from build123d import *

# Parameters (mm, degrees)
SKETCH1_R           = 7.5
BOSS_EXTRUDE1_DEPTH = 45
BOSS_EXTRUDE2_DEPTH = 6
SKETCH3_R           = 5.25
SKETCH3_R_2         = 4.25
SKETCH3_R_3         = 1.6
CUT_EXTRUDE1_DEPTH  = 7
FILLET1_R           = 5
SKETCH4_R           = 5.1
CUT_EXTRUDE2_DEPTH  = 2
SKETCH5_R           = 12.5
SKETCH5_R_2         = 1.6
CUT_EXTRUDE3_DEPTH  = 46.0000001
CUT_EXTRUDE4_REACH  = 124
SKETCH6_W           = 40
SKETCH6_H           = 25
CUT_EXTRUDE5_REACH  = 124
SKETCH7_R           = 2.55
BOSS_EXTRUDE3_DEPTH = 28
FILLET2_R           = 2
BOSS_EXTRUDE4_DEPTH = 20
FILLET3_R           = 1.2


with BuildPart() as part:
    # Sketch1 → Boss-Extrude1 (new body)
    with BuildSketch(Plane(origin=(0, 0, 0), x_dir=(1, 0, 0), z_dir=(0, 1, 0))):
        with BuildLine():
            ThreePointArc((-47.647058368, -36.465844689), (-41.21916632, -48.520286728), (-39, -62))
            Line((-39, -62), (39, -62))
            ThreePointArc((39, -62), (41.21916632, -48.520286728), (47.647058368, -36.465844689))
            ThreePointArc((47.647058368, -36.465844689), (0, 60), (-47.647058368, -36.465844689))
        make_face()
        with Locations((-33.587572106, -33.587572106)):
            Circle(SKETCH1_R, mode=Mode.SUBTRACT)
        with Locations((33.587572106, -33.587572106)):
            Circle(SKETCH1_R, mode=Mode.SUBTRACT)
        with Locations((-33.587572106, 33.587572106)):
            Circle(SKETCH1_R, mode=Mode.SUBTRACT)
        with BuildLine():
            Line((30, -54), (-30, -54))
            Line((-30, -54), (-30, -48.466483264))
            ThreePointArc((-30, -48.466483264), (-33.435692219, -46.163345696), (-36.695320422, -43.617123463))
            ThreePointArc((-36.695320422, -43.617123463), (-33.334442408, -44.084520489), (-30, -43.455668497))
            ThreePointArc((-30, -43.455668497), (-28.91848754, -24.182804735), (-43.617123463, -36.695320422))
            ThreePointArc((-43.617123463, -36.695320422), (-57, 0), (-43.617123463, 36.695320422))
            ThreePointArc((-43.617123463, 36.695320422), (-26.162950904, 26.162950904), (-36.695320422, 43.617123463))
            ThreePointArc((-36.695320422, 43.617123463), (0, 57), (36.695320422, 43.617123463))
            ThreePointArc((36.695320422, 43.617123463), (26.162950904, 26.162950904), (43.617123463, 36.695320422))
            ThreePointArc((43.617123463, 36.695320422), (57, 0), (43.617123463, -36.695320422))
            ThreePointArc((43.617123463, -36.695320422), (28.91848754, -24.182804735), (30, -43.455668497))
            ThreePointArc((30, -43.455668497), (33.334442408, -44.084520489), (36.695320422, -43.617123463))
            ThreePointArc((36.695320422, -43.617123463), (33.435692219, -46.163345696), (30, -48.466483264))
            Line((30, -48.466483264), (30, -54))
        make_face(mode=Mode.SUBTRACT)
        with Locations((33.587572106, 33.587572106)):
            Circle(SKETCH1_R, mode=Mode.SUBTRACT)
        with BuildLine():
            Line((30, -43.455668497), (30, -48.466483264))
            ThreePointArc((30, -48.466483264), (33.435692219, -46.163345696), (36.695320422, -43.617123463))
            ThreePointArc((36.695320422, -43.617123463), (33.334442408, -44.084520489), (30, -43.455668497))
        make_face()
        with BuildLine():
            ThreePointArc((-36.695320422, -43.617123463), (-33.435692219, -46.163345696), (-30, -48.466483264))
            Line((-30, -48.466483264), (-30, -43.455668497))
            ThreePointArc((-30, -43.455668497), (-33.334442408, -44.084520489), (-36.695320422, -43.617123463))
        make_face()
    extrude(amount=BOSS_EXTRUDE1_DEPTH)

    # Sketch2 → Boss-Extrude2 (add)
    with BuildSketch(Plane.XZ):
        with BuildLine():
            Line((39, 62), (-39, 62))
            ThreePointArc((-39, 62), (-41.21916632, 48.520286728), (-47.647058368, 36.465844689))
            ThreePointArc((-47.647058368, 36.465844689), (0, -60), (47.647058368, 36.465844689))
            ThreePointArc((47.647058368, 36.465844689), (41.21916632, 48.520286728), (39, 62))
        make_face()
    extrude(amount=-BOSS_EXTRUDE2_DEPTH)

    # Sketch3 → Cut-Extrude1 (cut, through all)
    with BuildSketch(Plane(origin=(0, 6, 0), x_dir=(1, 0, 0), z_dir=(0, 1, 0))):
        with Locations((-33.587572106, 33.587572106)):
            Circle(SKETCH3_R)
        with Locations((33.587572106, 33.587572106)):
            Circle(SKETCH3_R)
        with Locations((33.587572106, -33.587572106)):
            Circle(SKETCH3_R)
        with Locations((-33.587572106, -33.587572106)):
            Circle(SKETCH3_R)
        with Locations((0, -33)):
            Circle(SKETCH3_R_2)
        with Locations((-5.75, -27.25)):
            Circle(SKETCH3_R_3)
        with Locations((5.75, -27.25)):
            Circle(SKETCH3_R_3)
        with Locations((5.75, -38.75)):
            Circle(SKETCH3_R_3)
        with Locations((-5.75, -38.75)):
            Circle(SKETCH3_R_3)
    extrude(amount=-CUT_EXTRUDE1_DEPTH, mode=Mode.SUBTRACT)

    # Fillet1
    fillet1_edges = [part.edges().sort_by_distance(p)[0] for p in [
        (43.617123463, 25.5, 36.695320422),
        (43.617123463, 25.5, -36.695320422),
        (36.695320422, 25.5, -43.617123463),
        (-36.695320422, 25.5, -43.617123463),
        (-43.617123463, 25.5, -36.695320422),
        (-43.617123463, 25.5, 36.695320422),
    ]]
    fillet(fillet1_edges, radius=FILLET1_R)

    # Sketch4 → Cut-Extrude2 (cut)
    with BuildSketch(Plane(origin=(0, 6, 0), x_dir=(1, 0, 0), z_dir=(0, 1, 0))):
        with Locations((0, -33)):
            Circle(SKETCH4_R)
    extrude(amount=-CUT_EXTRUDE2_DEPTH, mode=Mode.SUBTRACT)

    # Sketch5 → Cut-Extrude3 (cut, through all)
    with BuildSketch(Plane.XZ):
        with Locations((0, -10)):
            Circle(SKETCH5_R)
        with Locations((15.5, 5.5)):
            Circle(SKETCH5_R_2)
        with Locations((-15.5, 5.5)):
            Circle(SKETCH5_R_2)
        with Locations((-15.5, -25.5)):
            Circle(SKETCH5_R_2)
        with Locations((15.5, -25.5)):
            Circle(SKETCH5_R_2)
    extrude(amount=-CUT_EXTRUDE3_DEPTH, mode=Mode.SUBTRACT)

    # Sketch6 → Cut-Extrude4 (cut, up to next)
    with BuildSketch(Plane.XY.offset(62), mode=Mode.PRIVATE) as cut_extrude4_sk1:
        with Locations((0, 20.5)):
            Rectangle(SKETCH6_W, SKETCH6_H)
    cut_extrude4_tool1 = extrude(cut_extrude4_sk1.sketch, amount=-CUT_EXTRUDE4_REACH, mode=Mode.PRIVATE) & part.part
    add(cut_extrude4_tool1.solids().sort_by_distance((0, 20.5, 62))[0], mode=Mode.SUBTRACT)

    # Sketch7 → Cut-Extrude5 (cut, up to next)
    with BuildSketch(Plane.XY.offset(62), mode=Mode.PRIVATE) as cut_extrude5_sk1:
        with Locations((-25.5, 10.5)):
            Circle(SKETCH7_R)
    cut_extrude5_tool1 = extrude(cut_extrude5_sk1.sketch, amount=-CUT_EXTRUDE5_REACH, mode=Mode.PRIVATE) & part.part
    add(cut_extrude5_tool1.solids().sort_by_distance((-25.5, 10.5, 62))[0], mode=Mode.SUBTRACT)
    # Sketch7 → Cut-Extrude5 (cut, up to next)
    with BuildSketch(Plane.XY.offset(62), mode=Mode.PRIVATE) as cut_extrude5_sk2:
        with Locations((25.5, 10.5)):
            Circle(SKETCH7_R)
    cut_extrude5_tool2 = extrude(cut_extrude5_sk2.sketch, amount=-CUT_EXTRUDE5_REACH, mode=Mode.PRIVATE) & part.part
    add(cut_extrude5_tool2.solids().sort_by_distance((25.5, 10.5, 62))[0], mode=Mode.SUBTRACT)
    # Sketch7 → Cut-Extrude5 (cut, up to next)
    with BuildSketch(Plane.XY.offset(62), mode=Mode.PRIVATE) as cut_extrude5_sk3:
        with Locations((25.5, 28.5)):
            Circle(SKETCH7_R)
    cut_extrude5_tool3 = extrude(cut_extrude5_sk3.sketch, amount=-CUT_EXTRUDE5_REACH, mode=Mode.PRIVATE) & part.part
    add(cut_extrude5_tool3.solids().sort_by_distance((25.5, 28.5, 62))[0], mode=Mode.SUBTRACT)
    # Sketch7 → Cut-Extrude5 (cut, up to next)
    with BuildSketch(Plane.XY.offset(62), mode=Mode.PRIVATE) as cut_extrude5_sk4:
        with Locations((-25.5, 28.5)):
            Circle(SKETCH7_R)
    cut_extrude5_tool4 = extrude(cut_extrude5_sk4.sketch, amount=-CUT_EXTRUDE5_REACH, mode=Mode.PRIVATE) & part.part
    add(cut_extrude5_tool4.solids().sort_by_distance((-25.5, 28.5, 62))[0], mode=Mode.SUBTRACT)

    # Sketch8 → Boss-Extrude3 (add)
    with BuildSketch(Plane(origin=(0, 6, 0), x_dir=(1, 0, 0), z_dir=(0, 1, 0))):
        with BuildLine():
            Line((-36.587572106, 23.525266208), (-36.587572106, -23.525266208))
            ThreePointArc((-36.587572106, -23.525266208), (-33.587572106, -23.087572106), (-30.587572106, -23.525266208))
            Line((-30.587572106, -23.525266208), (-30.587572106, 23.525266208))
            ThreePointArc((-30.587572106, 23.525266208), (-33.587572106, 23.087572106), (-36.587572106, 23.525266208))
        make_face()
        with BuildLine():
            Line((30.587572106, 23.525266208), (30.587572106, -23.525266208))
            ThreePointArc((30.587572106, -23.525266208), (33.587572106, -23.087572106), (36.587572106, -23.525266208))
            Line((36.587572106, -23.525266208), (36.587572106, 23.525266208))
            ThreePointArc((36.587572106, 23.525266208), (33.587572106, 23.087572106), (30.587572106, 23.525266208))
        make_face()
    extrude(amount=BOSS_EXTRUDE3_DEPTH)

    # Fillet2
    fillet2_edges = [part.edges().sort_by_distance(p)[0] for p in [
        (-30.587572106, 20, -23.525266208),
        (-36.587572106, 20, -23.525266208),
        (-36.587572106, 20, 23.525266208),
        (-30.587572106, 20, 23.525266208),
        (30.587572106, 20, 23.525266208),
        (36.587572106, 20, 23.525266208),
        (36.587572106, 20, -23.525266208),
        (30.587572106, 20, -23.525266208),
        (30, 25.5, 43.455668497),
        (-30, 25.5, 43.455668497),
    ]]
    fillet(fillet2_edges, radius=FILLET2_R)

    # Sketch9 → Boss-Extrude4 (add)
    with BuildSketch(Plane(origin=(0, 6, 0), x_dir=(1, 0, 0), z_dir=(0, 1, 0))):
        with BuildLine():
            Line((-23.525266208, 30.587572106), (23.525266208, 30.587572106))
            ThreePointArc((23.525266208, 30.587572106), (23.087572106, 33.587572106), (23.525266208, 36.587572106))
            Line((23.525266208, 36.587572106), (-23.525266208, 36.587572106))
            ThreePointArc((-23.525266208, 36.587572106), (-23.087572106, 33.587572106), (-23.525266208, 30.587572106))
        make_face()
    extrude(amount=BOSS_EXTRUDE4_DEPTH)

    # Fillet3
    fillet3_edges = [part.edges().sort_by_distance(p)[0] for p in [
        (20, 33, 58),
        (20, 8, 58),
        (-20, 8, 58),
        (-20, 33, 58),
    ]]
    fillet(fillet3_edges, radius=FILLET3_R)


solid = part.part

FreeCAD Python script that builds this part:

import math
import FreeCAD as App
import Part
import Sketcher

V = App.Vector


def edges_at(feature, points):
    """Names of the edges that pass closest to the given points."""
    edges = feature.Shape.Edges
    near = lambda p: min(range(len(edges)), key=lambda i: edges[i].distToShape(Part.Vertex(*p))[0])
    return sorted({f"Edge{near(p) + 1}" for p in points})


def add_polygon(sketch, points):
    """Adds a closed chain of lines whose ends are joined by coincident constraints."""
    first, n = sketch.GeometryCount, len(points)
    for a, b in zip(points, points[1:] + points[:1]):
        sketch.addGeometry(Part.LineSegment(App.Vector(*a, 0), App.Vector(*b, 0)), False)
    for i in range(n):
        sketch.addConstraint(Sketcher.Constraint("Coincident", first + i, 2, first + (i + 1) % n, 1))

doc = App.newDocument("Part")
body = doc.addObject("PartDesign::Body", "Body")

sketch1 = body.newObject("Sketcher::SketchObject", "Sketch")
sketch1.AttachmentSupport = (doc.getObject("XZ_Plane"), [""])
sketch1.MapMode = "FlatFace"
sketch1.addGeometry(Part.ArcOfCircle(Part.Circle(V(-81, 62, 0), V(0, 0, 1), 42), math.radians(-37), math.radians(0)), False)
sketch1.addGeometry(Part.LineSegment(V(-39, 62, 0), V(39, 62, 0)), False)
sketch1.addGeometry(Part.ArcOfCircle(Part.Circle(V(81, 62, 0), V(0, 0, 1), 42), math.radians(180), math.radians(217)), False)
sketch1.addGeometry(Part.ArcOfCircle(Part.Circle(V(0, 0, 0), V(0, 0, 1), 60), math.radians(143), math.radians(397)), False)
sketch1.addGeometry(Part.Circle(V(-34, 34, 0), V(0, 0, 1), 8), False)
sketch1.addGeometry(Part.Circle(V(34, 34, 0), V(0, 0, 1), 8), False)
sketch1.addGeometry(Part.LineSegment(V(30, 54, 0), V(-30, 54, 0)), False)
sketch1.addGeometry(Part.LineSegment(V(-30, 54, 0), V(-30, 43, 0)), False)
sketch1.addGeometry(Part.ArcOfCircle(Part.Circle(V(-34, 34, 0), V(0, 0, 1), 10), math.radians(163), math.radians(430)), False)
sketch1.addGeometry(Part.ArcOfCircle(Part.Circle(V(0, 0, 0), V(0, 0, 1), 57), math.radians(140), math.radians(220)), False)
sketch1.addGeometry(Part.ArcOfCircle(Part.Circle(V(-34, -34, 0), V(0, 0, 1), 10), math.radians(-107), math.radians(197)), False)
sketch1.addGeometry(Part.ArcOfCircle(Part.Circle(V(0, 0, 0), V(0, 0, 1), 57), math.radians(-130), math.radians(-50)), False)
sketch1.addGeometry(Part.ArcOfCircle(Part.Circle(V(34, -34, 0), V(0, 0, 1), 10), math.radians(-17), math.radians(287)), False)
sketch1.addGeometry(Part.ArcOfCircle(Part.Circle(V(0, 0, 0), V(0, 0, 1), 57), math.radians(-40), math.radians(40)), False)
sketch1.addGeometry(Part.ArcOfCircle(Part.Circle(V(34, 34, 0), V(0, 0, 1), 10), math.radians(110), math.radians(377)), False)
sketch1.addGeometry(Part.LineSegment(V(30, 43, 0), V(30, 54, 0)), False)
sketch1.addGeometry(Part.Circle(V(-34, -34, 0), V(0, 0, 1), 8), False)
sketch1.addGeometry(Part.Circle(V(34, -34, 0), V(0, 0, 1), 8), False)
sketch1.addConstraint(Sketcher.Constraint("Coincident", 0, 2, 1, 1))
sketch1.addConstraint(Sketcher.Constraint("Coincident", 1, 2, 2, 1))
sketch1.addConstraint(Sketcher.Constraint("Tangent", 2, 2, 3, 2))
sketch1.addConstraint(Sketcher.Constraint("Tangent", 3, 1, 0, 1))
sketch1.addConstraint(Sketcher.Constraint("Coincident", 6, 2, 7, 1))
sketch1.addConstraint(Sketcher.Constraint("Coincident", 7, 2, 8, 2))
sketch1.addConstraint(Sketcher.Constraint("Coincident", 8, 1, 9, 1))
sketch1.addConstraint(Sketcher.Constraint("Coincident", 9, 2, 10, 2))
sketch1.addConstraint(Sketcher.Constraint("Coincident", 10, 1, 11, 1))
sketch1.addConstraint(Sketcher.Constraint("Coincident", 11, 2, 12, 2))
sketch1.addConstraint(Sketcher.Constraint("Coincident", 12, 1, 13, 1))
sketch1.addConstraint(Sketcher.Constraint("Coincident", 13, 2, 14, 2))
sketch1.addConstraint(Sketcher.Constraint("Coincident", 14, 1, 15, 1))
sketch1.addConstraint(Sketcher.Constraint("Coincident", 15, 2, 6, 1))
sketch1.addConstraint(Sketcher.Constraint("Horizontal", 1))
sketch1.addConstraint(Sketcher.Constraint("Horizontal", 6))
sketch1.addConstraint(Sketcher.Constraint("Vertical", 7))
sketch1.addConstraint(Sketcher.Constraint("Vertical", 15))
sketch1.addConstraint(Sketcher.Constraint("Coincident", 3, 3, -1, 1))
sketch1.addConstraint(Sketcher.Constraint("Coincident", 9, 3, -1, 1))
sketch1.addConstraint(Sketcher.Constraint("Coincident", 11, 3, -1, 1))
sketch1.addConstraint(Sketcher.Constraint("Coincident", 13, 3, -1, 1))
sketch1.addConstraint(Sketcher.Constraint("Coincident", 8, 3, 4, 3))
sketch1.addConstraint(Sketcher.Constraint("Coincident", 14, 3, 5, 3))
sketch1.addConstraint(Sketcher.Constraint("Coincident", 16, 3, 10, 3))
sketch1.addConstraint(Sketcher.Constraint("Coincident", 17, 3, 12, 3))
sketch1.addConstraint(Sketcher.Constraint("Equal", 0, 2))
sketch1.addConstraint(Sketcher.Constraint("Equal", 4, 5))
sketch1.addConstraint(Sketcher.Constraint("Equal", 8, 10))
sketch1.addConstraint(Sketcher.Constraint("Equal", 9, 11))
sketch1.addConstraint(Sketcher.Constraint("Equal", 10, 12))
sketch1.addConstraint(Sketcher.Constraint("Equal", 11, 13))
sketch1.addConstraint(Sketcher.Constraint("Equal", 12, 14))
sketch1.addConstraint(Sketcher.Constraint("Equal", 5, 16))
sketch1.addConstraint(Sketcher.Constraint("Equal", 16, 17))
sketch1.addConstraint(Sketcher.Constraint("Symmetric", 5, 3, 10, 3, -1, 1))
sketch1.addConstraint(Sketcher.Constraint("Symmetric", 4, 3, 12, 3, -1, 1))
sketch1.addConstraint(Sketcher.Constraint("Symmetric", 4, 3, 5, 3, -2))
sketch1.addConstraint(Sketcher.Constraint("Horizontal", 0, 3, 2, 3))
sketch1.addConstraint(Sketcher.Constraint("Horizontal", 7, 2, 14, 1))
sketch1.addConstraint(Sketcher.Constraint("Diameter", 4, 15.0))
sketch1.addConstraint(Sketcher.Constraint("Radius", 0, 42.0))
sketch1.addConstraint(Sketcher.Constraint("Radius", 3, 60.0))
sketch1.addConstraint(Sketcher.Constraint("Radius", 9, 57.0))
sketch1.addConstraint(Sketcher.Constraint("Radius", 8, 10.5))
sketch1.addConstraint(Sketcher.Constraint("DistanceX", 1, 1, 1, 2, 78.0))
sketch1.addConstraint(Sketcher.Constraint("DistanceX", 6, 2, 6, 1, 60.0))
sketch1.addConstraint(Sketcher.Constraint("DistanceY", -1, 1, 0, 2, 62.0))
sketch1.addConstraint(Sketcher.Constraint("DistanceY", -1, 1, 6, 2, 54.0))
sketch1.addConstraint(Sketcher.Constraint("DistanceY", 7, 2, 7, 1, 10.544332))
sketch1.addConstraint(Sketcher.Constraint("DistanceY", -1, 1, 8, 1, 36.69532))
pad1 = body.newObject("PartDesign::Pad", "Pad")
pad1.Profile = sketch1
pad1.Length = 45
pad1.Reversed = True

sketch2 = body.newObject("Sketcher::SketchObject", "Sketch001")
sketch2.AttachmentSupport = (doc.getObject("XZ_Plane"), [""])
sketch2.MapMode = "FlatFace"
sketch2.addGeometry(Part.LineSegment(V(39, 62, 0), V(-39, 62, 0)), False)
sketch2.addGeometry(Part.ArcOfCircle(Part.Circle(V(-81, 62, 0), V(0, 0, 1), 42), math.radians(-37), math.radians(0)), False)
sketch2.addGeometry(Part.ArcOfCircle(Part.Circle(V(0, 0, 0), V(0, 0, 1), 60), math.radians(143), math.radians(397)), False)
sketch2.addGeometry(Part.ArcOfCircle(Part.Circle(V(81, 62, 0), V(0, 0, 1), 42), math.radians(180), math.radians(217)), False)
sketch2.addConstraint(Sketcher.Constraint("Coincident", 0, 2, 1, 2))
sketch2.addConstraint(Sketcher.Constraint("Tangent", 1, 1, 2, 1))
sketch2.addConstraint(Sketcher.Constraint("Tangent", 2, 2, 3, 2))
sketch2.addConstraint(Sketcher.Constraint("Coincident", 3, 1, 0, 1))
sketch2.addConstraint(Sketcher.Constraint("Horizontal", 0))
sketch2.addConstraint(Sketcher.Constraint("Coincident", 2, 3, -1, 1))
sketch2.addConstraint(Sketcher.Constraint("Equal", 1, 3))
sketch2.addConstraint(Sketcher.Constraint("Horizontal", 1, 3, 3, 3))
sketch2.addConstraint(Sketcher.Constraint("Radius", 1, 42.0))
sketch2.addConstraint(Sketcher.Constraint("Radius", 2, 60.0))
sketch2.addConstraint(Sketcher.Constraint("DistanceX", 0, 2, 0, 1, 78.0))
sketch2.addConstraint(Sketcher.Constraint("DistanceY", -1, 1, 0, 2, 62.0))
pad2 = body.newObject("PartDesign::Pad", "Pad001")
pad2.Profile = sketch2
pad2.Length = 6
pad2.Reversed = True

sketch3 = body.newObject("Sketcher::SketchObject", "Sketch002")
sketch3.AttachmentSupport = (doc.getObject("XZ_Plane"), [""])
sketch3.MapMode = "FlatFace"
sketch3.AttachmentOffset = App.Placement(V(0, 0, -6), App.Rotation())
sketch3.addGeometry(Part.Circle(V(-33.6, -33.6, 0), V(0, 0, 1), 5.2), False)
sketch3.addGeometry(Part.Circle(V(33.6, -33.6, 0), V(0, 0, 1), 5.2), False)
sketch3.addGeometry(Part.Circle(V(33.6, 33.6, 0), V(0, 0, 1), 5.2), False)
sketch3.addGeometry(Part.Circle(V(-33.6, 33.6, 0), V(0, 0, 1), 5.2), False)
sketch3.addGeometry(Part.Circle(V(0, 33, 0), V(0, 0, 1), 4.2), False)
sketch3.addGeometry(Part.Circle(V(-5.8, 27.2, 0), V(0, 0, 1), 1.6), False)
sketch3.addGeometry(Part.Circle(V(5.8, 27.2, 0), V(0, 0, 1), 1.6), False)
sketch3.addGeometry(Part.Circle(V(5.8, 38.8, 0), V(0, 0, 1), 1.6), False)
sketch3.addGeometry(Part.Circle(V(-5.8, 38.8, 0), V(0, 0, 1), 1.6), False)
sketch3.addConstraint(Sketcher.Constraint("Equal", 0, 1))
sketch3.addConstraint(Sketcher.Constraint("Equal", 1, 2))
sketch3.addConstraint(Sketcher.Constraint("Equal", 2, 3))
sketch3.addConstraint(Sketcher.Constraint("Equal", 5, 6))
sketch3.addConstraint(Sketcher.Constraint("Equal", 6, 7))
sketch3.addConstraint(Sketcher.Constraint("Equal", 7, 8))
sketch3.addConstraint(Sketcher.Constraint("Symmetric", 0, 3, 2, 3, -1, 1))
sketch3.addConstraint(Sketcher.Constraint("Symmetric", 1, 3, 3, 3, -1, 1))
sketch3.addConstraint(Sketcher.Constraint("Symmetric", 0, 3, 1, 3, -2))
sketch3.addConstraint(Sketcher.Constraint("Symmetric", 5, 3, 6, 3, -2))
sketch3.addConstraint(Sketcher.Constraint("Symmetric", 7, 3, 8, 3, -2))
sketch3.addConstraint(Sketcher.Constraint("PointOnObject", 4, 3, -2))
sketch3.addConstraint(Sketcher.Constraint("Vertical", 6, 3, 7, 3))
sketch3.addConstraint(Sketcher.Constraint("Diameter", 0, 10.5))
sketch3.addConstraint(Sketcher.Constraint("Diameter", 4, 8.5))
sketch3.addConstraint(Sketcher.Constraint("Diameter", 5, 3.2))
sketch3.addConstraint(Sketcher.Constraint("DistanceY", -1, 1, 4, 3, 33.0))
sketch3.addConstraint(Sketcher.Constraint("DistanceX", 5, 3, 6, 3, 11.5))
sketch3.addConstraint(Sketcher.Constraint("DistanceY", 6, 3, 7, 3, 11.5))
sketch3.addConstraint(Sketcher.Constraint("DistanceY", -1, 1, 5, 3, 27.25))
sketch3.addConstraint(Sketcher.Constraint("DistanceX", 0, 3, -1, 1, 33.587572))
sketch3.addConstraint(Sketcher.Constraint("DistanceY", 0, 3, -1, 1, 33.587572))
pocket1 = body.newObject("PartDesign::Pocket", "Pocket")
pocket1.Profile = sketch3
pocket1.Type = "ThroughAll"
pocket1.Reversed = True
doc.recompute()

fillet = body.newObject("PartDesign::Fillet", "Fillet")
fillet.Base = (pocket1, edges_at(pocket1, [
    (43.617, 25.5, 36.695),
    (43.617, 25.5, -36.695),
    (36.695, 25.5, -43.617),
    (-36.695, 25.5, -43.617),
    (-43.617, 25.5, -36.695),
    (-43.617, 25.5, 36.695),
]))
fillet.Radius = 5

sketch4 = body.newObject("Sketcher::SketchObject", "Sketch003")
sketch4.AttachmentSupport = (doc.getObject("XZ_Plane"), [""])
sketch4.MapMode = "FlatFace"
sketch4.AttachmentOffset = App.Placement(V(0, 0, -6), App.Rotation())
sketch4.addGeometry(Part.Circle(V(0, 33, 0), V(0, 0, 1), 5), False)
sketch4.addConstraint(Sketcher.Constraint("PointOnObject", 0, 3, -2))
sketch4.addConstraint(Sketcher.Constraint("Diameter", 0, 10.2))
sketch4.addConstraint(Sketcher.Constraint("DistanceY", -1, 1, 0, 3, 33.0))
pocket2 = body.newObject("PartDesign::Pocket", "Pocket001")
pocket2.Profile = sketch4
pocket2.Length = 2
pocket2.Reversed = True

sketch5 = body.newObject("Sketcher::SketchObject", "Sketch004")
sketch5.AttachmentSupport = (doc.getObject("XZ_Plane"), [""])
sketch5.MapMode = "FlatFace"
sketch5.addGeometry(Part.Circle(V(0, -10, 0), V(0, 0, 1), 12.5), False)
sketch5.addGeometry(Part.Circle(V(15.5, 5.5, 0), V(0, 0, 1), 1.6), False)
sketch5.addGeometry(Part.Circle(V(-15.5, 5.5, 0), V(0, 0, 1), 1.6), False)
sketch5.addGeometry(Part.Circle(V(-15.5, -25.5, 0), V(0, 0, 1), 1.6), False)
sketch5.addGeometry(Part.Circle(V(15.5, -25.5, 0), V(0, 0, 1), 1.6), False)
sketch5.addConstraint(Sketcher.Constraint("Equal", 1, 2))
sketch5.addConstraint(Sketcher.Constraint("Equal", 2, 3))
sketch5.addConstraint(Sketcher.Constraint("Equal", 3, 4))
sketch5.addConstraint(Sketcher.Constraint("Symmetric", 1, 3, 2, 3, -2))
sketch5.addConstraint(Sketcher.Constraint("Symmetric", 3, 3, 4, 3, -2))
sketch5.addConstraint(Sketcher.Constraint("PointOnObject", 0, 3, -2))
sketch5.addConstraint(Sketcher.Constraint("Vertical", 2, 3, 3, 3))
sketch5.addConstraint(Sketcher.Constraint("Diameter", 0, 25.0))
sketch5.addConstraint(Sketcher.Constraint("Diameter", 1, 3.2))
sketch5.addConstraint(Sketcher.Constraint("DistanceY", 0, 3, -1, 1, 10.0))
sketch5.addConstraint(Sketcher.Constraint("DistanceX", 2, 3, 1, 3, 31.0))
sketch5.addConstraint(Sketcher.Constraint("DistanceY", 3, 3, 2, 3, 31.0))
sketch5.addConstraint(Sketcher.Constraint("DistanceY", -1, 1, 1, 3, 5.5))
pocket3 = body.newObject("PartDesign::Pocket", "Pocket002")
pocket3.Profile = sketch5
pocket3.Type = "ThroughAll"

sketch6 = body.newObject("Sketcher::SketchObject", "Sketch005")
sketch6.AttachmentSupport = (doc.getObject("XY_Plane"), [""])
sketch6.MapMode = "FlatFace"
sketch6.AttachmentOffset = App.Placement(V(0, 0, 62), App.Rotation())
add_polygon(sketch6, [(-20, 33), (-20, 8), (20, 8), (20, 33)])
sketch6.addConstraint(Sketcher.Constraint("Vertical", 0))
sketch6.addConstraint(Sketcher.Constraint("Horizontal", 1))
sketch6.addConstraint(Sketcher.Constraint("Vertical", 2))
sketch6.addConstraint(Sketcher.Constraint("Horizontal", 3))
sketch6.addConstraint(Sketcher.Constraint("DistanceX", 1, 1, 1, 2, 40.0))
sketch6.addConstraint(Sketcher.Constraint("DistanceY", 0, 2, 0, 1, 25.0))
sketch6.addConstraint(Sketcher.Constraint("DistanceX", 0, 2, -1, 1, 20.0))
sketch6.addConstraint(Sketcher.Constraint("DistanceY", -1, 1, 0, 2, 8.0))
pocket4 = body.newObject("PartDesign::Pocket", "Pocket003")
pocket4.Profile = sketch6
pocket4.Type = "UpToFirst"

sketch7 = body.newObject("Sketcher::SketchObject", "Sketch006")
sketch7.AttachmentSupport = (doc.getObject("XY_Plane"), [""])
sketch7.MapMode = "FlatFace"
sketch7.AttachmentOffset = App.Placement(V(0, 0, 62), App.Rotation())
sketch7.addGeometry(Part.Circle(V(-25.5, 10.5, 0), V(0, 0, 1), 2.5), False)
sketch7.addConstraint(Sketcher.Constraint("Diameter", 0, 5.1))
sketch7.addConstraint(Sketcher.Constraint("DistanceX", 0, 3, -1, 1, 25.5))
sketch7.addConstraint(Sketcher.Constraint("DistanceY", -1, 1, 0, 3, 10.5))
pocket5 = body.newObject("PartDesign::Pocket", "Pocket004")
pocket5.Profile = sketch7
pocket5.Type = "UpToFirst"

sketch8 = body.newObject("Sketcher::SketchObject", "Sketch007")
sketch8.AttachmentSupport = (doc.getObject("XY_Plane"), [""])
sketch8.MapMode = "FlatFace"
sketch8.AttachmentOffset = App.Placement(V(0, 0, 62), App.Rotation())
sketch8.addGeometry(Part.Circle(V(25.5, 10.5, 0), V(0, 0, 1), 2.5), False)
sketch8.addConstraint(Sketcher.Constraint("Diameter", 0, 5.1))
sketch8.addConstraint(Sketcher.Constraint("DistanceX", -1, 1, 0, 3, 25.5))
sketch8.addConstraint(Sketcher.Constraint("DistanceY", -1, 1, 0, 3, 10.5))
pocket6 = body.newObject("PartDesign::Pocket", "Pocket005")
pocket6.Profile = sketch8
pocket6.Type = "UpToFirst"

sketch9 = body.newObject("Sketcher::SketchObject", "Sketch008")
sketch9.AttachmentSupport = (doc.getObject("XY_Plane"), [""])
sketch9.MapMode = "FlatFace"
sketch9.AttachmentOffset = App.Placement(V(0, 0, 62), App.Rotation())
sketch9.addGeometry(Part.Circle(V(25.5, 28.5, 0), V(0, 0, 1), 2.5), False)
sketch9.addConstraint(Sketcher.Constraint("Diameter", 0, 5.1))
sketch9.addConstraint(Sketcher.Constraint("DistanceX", -1, 1, 0, 3, 25.5))
sketch9.addConstraint(Sketcher.Constraint("DistanceY", -1, 1, 0, 3, 28.5))
pocket7 = body.newObject("PartDesign::Pocket", "Pocket006")
pocket7.Profile = sketch9
pocket7.Type = "UpToFirst"

sketch10 = body.newObject("Sketcher::SketchObject", "Sketch009")
sketch10.AttachmentSupport = (doc.getObject("XY_Plane"), [""])
sketch10.MapMode = "FlatFace"
sketch10.AttachmentOffset = App.Placement(V(0, 0, 62), App.Rotation())
sketch10.addGeometry(Part.Circle(V(-25.5, 28.5, 0), V(0, 0, 1), 2.5), False)
sketch10.addConstraint(Sketcher.Constraint("Diameter", 0, 5.1))
sketch10.addConstraint(Sketcher.Constraint("DistanceX", 0, 3, -1, 1, 25.5))
sketch10.addConstraint(Sketcher.Constraint("DistanceY", -1, 1, 0, 3, 28.5))
pocket8 = body.newObject("PartDesign::Pocket", "Pocket007")
pocket8.Profile = sketch10
pocket8.Type = "UpToFirst"

sketch11 = body.newObject("Sketcher::SketchObject", "Sketch010")
sketch11.AttachmentSupport = (doc.getObject("XZ_Plane"), [""])
sketch11.MapMode = "FlatFace"
sketch11.AttachmentOffset = App.Placement(V(0, 0, -6), App.Rotation())
sketch11.addGeometry(Part.LineSegment(V(-37, -24, 0), V(-37, 24, 0)), False)
sketch11.addGeometry(Part.ArcOfCircle(Part.Circle(V(-34, 34, 0), V(0, 0, 1), 10), math.radians(-107), math.radians(-73)), False)
sketch11.addGeometry(Part.LineSegment(V(-31, 24, 0), V(-31, -24, 0)), False)
sketch11.addGeometry(Part.ArcOfCircle(Part.Circle(V(-34, -34, 0), V(0, 0, 1), 10), math.radians(73), math.radians(107)), False)
sketch11.addGeometry(Part.LineSegment(V(31, -24, 0), V(31, 24, 0)), False)
sketch11.addGeometry(Part.ArcOfCircle(Part.Circle(V(34, 34, 0), V(0, 0, 1), 10), math.radians(-107), math.radians(-73)), False)
sketch11.addGeometry(Part.LineSegment(V(37, 24, 0), V(37, -24, 0)), False)
sketch11.addGeometry(Part.ArcOfCircle(Part.Circle(V(34, -34, 0), V(0, 0, 1), 10), math.radians(73), math.radians(107)), False)
sketch11.addConstraint(Sketcher.Constraint("Coincident", 0, 2, 1, 1))
sketch11.addConstraint(Sketcher.Constraint("Coincident", 1, 2, 2, 1))
sketch11.addConstraint(Sketcher.Constraint("Coincident", 2, 2, 3, 1))
sketch11.addConstraint(Sketcher.Constraint("Coincident", 3, 2, 0, 1))
sketch11.addConstraint(Sketcher.Constraint("Coincident", 4, 2, 5, 1))
sketch11.addConstraint(Sketcher.Constraint("Coincident", 5, 2, 6, 1))
sketch11.addConstraint(Sketcher.Constraint("Coincident", 6, 2, 7, 1))
sketch11.addConstraint(Sketcher.Constraint("Coincident", 7, 2, 4, 1))
sketch11.addConstraint(Sketcher.Constraint("Vertical", 0))
sketch11.addConstraint(Sketcher.Constraint("Vertical", 2))
sketch11.addConstraint(Sketcher.Constraint("Vertical", 4))
sketch11.addConstraint(Sketcher.Constraint("Vertical", 6))
sketch11.addConstraint(Sketcher.Constraint("Equal", 1, 3))
sketch11.addConstraint(Sketcher.Constraint("Equal", 3, 5))
sketch11.addConstraint(Sketcher.Constraint("Equal", 5, 7))
sketch11.addConstraint(Sketcher.Constraint("Symmetric", 3, 3, 5, 3, -1, 1))
sketch11.addConstraint(Sketcher.Constraint("Symmetric", 1, 3, 7, 3, -1, 1))
sketch11.addConstraint(Sketcher.Constraint("Symmetric", 1, 3, 5, 3, -2))
sketch11.addConstraint(Sketcher.Constraint("Horizontal", 0, 2, 1, 2))
sketch11.addConstraint(Sketcher.Constraint("Horizontal", 1, 2, 4, 2))
sketch11.addConstraint(Sketcher.Constraint("Horizontal", 4, 2, 5, 2))
sketch11.addConstraint(Sketcher.Constraint("Radius", 1, 10.5))
sketch11.addConstraint(Sketcher.Constraint("DistanceX", 0, 2, 1, 3, 3.0))
sketch11.addConstraint(Sketcher.Constraint("DistanceY", 0, 1, 0, 2, 47.050532))
sketch11.addConstraint(Sketcher.Constraint("DistanceX", 1, 3, -1, 1, 33.587572))
pad3 = body.newObject("PartDesign::Pad", "Pad002")
pad3.Profile = sketch11
pad3.Length = 28
pad3.Reversed = True
doc.recompute()

fillet2 = body.newObject("PartDesign::Fillet", "Fillet001")
fillet2.Base = (pad3, edges_at(pad3, [
    (-30.588, 20, -23.525),
    (-36.588, 20, -23.525),
    (-36.588, 20, 23.525),
    (-30.588, 20, 23.525),
    (30.588, 20, 23.525),
    (36.588, 20, 23.525),
    (36.588, 20, -23.525),
    (30.588, 20, -23.525),
    (30, 25.5, 43.456),
    (-30, 25.5, 43.456),
]))
fillet2.Radius = 2

sketch12 = body.newObject("Sketcher::SketchObject", "Sketch011")
sketch12.AttachmentSupport = (doc.getObject("XZ_Plane"), [""])
sketch12.MapMode = "FlatFace"
sketch12.AttachmentOffset = App.Placement(V(0, 0, -6), App.Rotation())
sketch12.addGeometry(Part.LineSegment(V(-24, -31, 0), V(24, -31, 0)), False)
sketch12.addGeometry(Part.ArcOfCircle(Part.Circle(V(34, -34, 0), V(0, 0, 1), 10), math.radians(163), math.radians(197)), False)
sketch12.addGeometry(Part.LineSegment(V(24, -37, 0), V(-24, -37, 0)), False)
sketch12.addGeometry(Part.ArcOfCircle(Part.Circle(V(-34, -34, 0), V(0, 0, 1), 10), math.radians(-17), math.radians(17)), False)
sketch12.addConstraint(Sketcher.Constraint("Coincident", 0, 2, 1, 1))
sketch12.addConstraint(Sketcher.Constraint("Coincident", 1, 2, 2, 1))
sketch12.addConstraint(Sketcher.Constraint("Coincident", 2, 2, 3, 1))
sketch12.addConstraint(Sketcher.Constraint("Coincident", 3, 2, 0, 1))
sketch12.addConstraint(Sketcher.Constraint("Horizontal", 0))
sketch12.addConstraint(Sketcher.Constraint("Horizontal", 2))
sketch12.addConstraint(Sketcher.Constraint("Equal", 1, 3))
sketch12.addConstraint(Sketcher.Constraint("Symmetric", 1, 3, 3, 3, -2))
sketch12.addConstraint(Sketcher.Constraint("Vertical", 0, 2, 1, 2))
sketch12.addConstraint(Sketcher.Constraint("Radius", 1, 10.5))
sketch12.addConstraint(Sketcher.Constraint("DistanceY", 1, 3, 0, 2, 3.0))
sketch12.addConstraint(Sketcher.Constraint("DistanceX", 0, 1, 0, 2, 47.050532))
sketch12.addConstraint(Sketcher.Constraint("DistanceY", 1, 3, -1, 1, 33.587572))
pad4 = body.newObject("PartDesign::Pad", "Pad003")
pad4.Profile = sketch12
pad4.Length = 20
pad4.Reversed = True
doc.recompute()

fillet3 = body.newObject("PartDesign::Fillet", "Fillet002")
fillet3.Base = (pad4, edges_at(pad4, [
    (20, 33, 58),
    (20, 8, 58),
    (-20, 8, 58),
    (-20, 33, 58),
]))
fillet3.Radius = 1.2

doc.recompute()
